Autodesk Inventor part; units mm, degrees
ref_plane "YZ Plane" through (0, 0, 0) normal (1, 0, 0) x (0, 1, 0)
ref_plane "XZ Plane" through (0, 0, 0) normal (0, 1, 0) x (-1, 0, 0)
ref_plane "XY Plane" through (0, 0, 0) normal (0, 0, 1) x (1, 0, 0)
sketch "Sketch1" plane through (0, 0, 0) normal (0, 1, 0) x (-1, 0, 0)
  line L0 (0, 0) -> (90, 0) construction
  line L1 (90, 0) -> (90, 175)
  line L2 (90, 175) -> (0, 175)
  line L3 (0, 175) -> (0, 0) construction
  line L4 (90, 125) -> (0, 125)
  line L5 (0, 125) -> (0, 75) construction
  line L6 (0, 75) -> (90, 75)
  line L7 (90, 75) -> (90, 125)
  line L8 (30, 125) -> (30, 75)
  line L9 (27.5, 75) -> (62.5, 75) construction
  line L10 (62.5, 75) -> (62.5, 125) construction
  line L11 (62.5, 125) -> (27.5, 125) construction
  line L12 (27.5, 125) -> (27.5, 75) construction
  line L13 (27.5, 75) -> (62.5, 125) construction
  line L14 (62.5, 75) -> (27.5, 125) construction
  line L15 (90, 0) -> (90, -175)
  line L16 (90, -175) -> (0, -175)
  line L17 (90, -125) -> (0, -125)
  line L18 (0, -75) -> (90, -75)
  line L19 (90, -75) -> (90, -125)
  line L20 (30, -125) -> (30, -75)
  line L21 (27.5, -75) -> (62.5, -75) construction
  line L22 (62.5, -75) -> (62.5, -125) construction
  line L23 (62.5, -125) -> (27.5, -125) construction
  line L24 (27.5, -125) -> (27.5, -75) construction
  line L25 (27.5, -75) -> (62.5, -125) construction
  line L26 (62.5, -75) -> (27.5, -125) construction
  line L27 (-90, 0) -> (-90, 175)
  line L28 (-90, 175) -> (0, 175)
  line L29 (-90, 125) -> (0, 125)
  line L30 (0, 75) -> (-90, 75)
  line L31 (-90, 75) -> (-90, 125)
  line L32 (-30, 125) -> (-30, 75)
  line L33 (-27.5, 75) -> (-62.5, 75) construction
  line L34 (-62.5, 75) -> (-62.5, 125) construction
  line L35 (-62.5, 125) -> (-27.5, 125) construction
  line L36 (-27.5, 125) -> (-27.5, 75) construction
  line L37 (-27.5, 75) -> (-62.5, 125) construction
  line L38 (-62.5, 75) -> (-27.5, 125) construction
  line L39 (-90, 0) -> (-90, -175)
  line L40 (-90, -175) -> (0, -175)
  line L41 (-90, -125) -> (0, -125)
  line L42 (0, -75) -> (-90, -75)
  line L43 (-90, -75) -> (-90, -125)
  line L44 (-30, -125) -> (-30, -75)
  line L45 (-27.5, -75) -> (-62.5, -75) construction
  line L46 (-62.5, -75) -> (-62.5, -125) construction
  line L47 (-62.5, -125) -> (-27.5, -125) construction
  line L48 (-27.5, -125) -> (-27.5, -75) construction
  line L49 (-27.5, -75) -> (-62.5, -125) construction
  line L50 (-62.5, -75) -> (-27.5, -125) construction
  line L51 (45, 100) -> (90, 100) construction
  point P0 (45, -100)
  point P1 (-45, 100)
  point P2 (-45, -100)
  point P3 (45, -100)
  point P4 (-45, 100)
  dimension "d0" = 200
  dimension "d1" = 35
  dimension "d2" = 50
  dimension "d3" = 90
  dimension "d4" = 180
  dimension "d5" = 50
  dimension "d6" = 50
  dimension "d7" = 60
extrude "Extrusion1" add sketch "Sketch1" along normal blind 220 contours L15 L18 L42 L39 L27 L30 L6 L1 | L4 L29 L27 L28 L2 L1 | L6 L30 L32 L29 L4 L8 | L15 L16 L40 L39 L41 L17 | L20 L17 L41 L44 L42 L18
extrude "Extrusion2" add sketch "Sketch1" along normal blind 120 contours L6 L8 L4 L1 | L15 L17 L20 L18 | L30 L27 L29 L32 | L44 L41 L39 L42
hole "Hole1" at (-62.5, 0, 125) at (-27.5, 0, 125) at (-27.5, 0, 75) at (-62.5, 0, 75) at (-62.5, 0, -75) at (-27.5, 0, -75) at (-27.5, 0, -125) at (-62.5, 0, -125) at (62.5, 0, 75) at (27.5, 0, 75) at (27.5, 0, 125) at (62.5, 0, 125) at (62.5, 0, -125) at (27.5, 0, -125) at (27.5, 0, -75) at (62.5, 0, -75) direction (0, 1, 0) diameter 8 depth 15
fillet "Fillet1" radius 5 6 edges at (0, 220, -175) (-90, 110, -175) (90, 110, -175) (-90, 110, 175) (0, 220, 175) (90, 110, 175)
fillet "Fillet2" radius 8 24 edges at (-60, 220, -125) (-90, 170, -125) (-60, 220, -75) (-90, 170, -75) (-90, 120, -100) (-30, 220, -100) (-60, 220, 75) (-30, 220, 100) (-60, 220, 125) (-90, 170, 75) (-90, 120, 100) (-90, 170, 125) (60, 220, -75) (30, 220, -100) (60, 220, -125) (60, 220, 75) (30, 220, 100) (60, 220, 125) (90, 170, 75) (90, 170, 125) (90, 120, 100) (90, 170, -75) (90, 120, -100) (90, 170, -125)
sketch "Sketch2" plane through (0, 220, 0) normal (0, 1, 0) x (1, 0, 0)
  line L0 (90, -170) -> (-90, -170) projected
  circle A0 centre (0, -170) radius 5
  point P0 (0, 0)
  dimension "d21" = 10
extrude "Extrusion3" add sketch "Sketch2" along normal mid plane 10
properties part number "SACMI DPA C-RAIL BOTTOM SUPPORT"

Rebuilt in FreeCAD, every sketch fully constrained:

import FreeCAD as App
import Part
import Sketcher


def edges_at(feature, points):
    """Names of the edges that pass closest to the given points."""
    edges = feature.Shape.Edges
    near = lambda p: min(range(len(edges)), key=lambda i: edges[i].distToShape(Part.Vertex(*p))[0])
    return sorted({f"Edge{near(p) + 1}" for p in points})


def add_polygon(sketch, points):
    """Adds a closed chain of lines whose ends are joined by coincident constraints."""
    first, n = sketch.GeometryCount, len(points)
    for a, b in zip(points, points[1:] + points[:1]):
        sketch.addGeometry(Part.LineSegment(App.Vector(*a, 0), App.Vector(*b, 0)), False)
    for i in range(n):
        sketch.addConstraint(Sketcher.Constraint("Coincident", first + i, 2, first + (i + 1) % n, 1))

doc = App.newDocument("Part")
body = doc.addObject("PartDesign::Body", "Body")

sketch1 = doc.addObject("Sketcher::SketchObject", "Sketch")
body.addObject(sketch1)
sketch1.AttachmentSupport = (doc.XZ_Plane, [""])
sketch1.MapMode = "FlatFace"
add_polygon(sketch1, [(-90, -75), (-90, 75), (-30, 75), (-30, 125), (-90, 125), (-90, 175), (90, 175), (90, 125), (30, 125), (30, 75), (90, 75), (90, -75), (30, -75), (30, -125), (90, -125), (90, -175), (-90, -175), (-90, -125), (-30, -125), (-30, -75)])
sketch1.addConstraint(Sketcher.Constraint("Vertical", 0))
sketch1.addConstraint(Sketcher.Constraint("Horizontal", 1))
sketch1.addConstraint(Sketcher.Constraint("Vertical", 2))
sketch1.addConstraint(Sketcher.Constraint("Horizontal", 3))
sketch1.addConstraint(Sketcher.Constraint("Vertical", 4))
sketch1.addConstraint(Sketcher.Constraint("Horizontal", 5))
sketch1.addConstraint(Sketcher.Constraint("Vertical", 6))
sketch1.addConstraint(Sketcher.Constraint("Horizontal", 7))
sketch1.addConstraint(Sketcher.Constraint("Vertical", 8))
sketch1.addConstraint(Sketcher.Constraint("Horizontal", 9))
sketch1.addConstraint(Sketcher.Constraint("Vertical", 10))
sketch1.addConstraint(Sketcher.Constraint("Horizontal", 11))
sketch1.addConstraint(Sketcher.Constraint("Vertical", 12))
sketch1.addConstraint(Sketcher.Constraint("Horizontal", 13))
sketch1.addConstraint(Sketcher.Constraint("Vertical", 14))
sketch1.addConstraint(Sketcher.Constraint("Horizontal", 15))
sketch1.addConstraint(Sketcher.Constraint("Vertical", 16))
sketch1.addConstraint(Sketcher.Constraint("Horizontal", 17))
sketch1.addConstraint(Sketcher.Constraint("Vertical", 18))
sketch1.addConstraint(Sketcher.Constraint("Horizontal", 19))
sketch1.addConstraint(Sketcher.Constraint("Symmetric", 0, 2, 10, 2, -1, 1))
sketch1.addConstraint(Sketcher.Constraint("Symmetric", 2, 2, 12, 2, -1, 1))
sketch1.addConstraint(Sketcher.Constraint("Symmetric", 4, 2, 14, 2, -1, 1))
sketch1.addConstraint(Sketcher.Constraint("Symmetric", 6, 2, 16, 2, -1, 1))
sketch1.addConstraint(Sketcher.Constraint("Symmetric", 8, 2, 18, 2, -1, 1))
sketch1.addConstraint(Sketcher.Constraint("Symmetric", 3, 2, 6, 2, -2))
sketch1.addConstraint(Sketcher.Constraint("Symmetric", 1, 2, 8, 2, -2))
sketch1.addConstraint(Sketcher.Constraint("Vertical", 0, 2, 3, 2))
sketch1.addConstraint(Sketcher.Constraint("Equal", 2, 4))
sketch1.addConstraint(Sketcher.Constraint("DistanceX", 1, 1, 1, 2, 60.0))
sketch1.addConstraint(Sketcher.Constraint("DistanceX", 5, 1, 5, 2, 180.0))
sketch1.addConstraint(Sketcher.Constraint("DistanceY", 2, 1, 2, 2, 50.0))
sketch1.addConstraint(Sketcher.Constraint("DistanceY", 10, 2, 6, 2, 200.0))
pad1 = doc.addObject("PartDesign::Pad", "Pad")
body.addObject(pad1)
pad1.Profile = sketch1
pad1.Length = 220
pad1.Reversed = True

sketch2 = doc.addObject("Sketcher::SketchObject", "Sketch001")
body.addObject(sketch2)
sketch2.AttachmentSupport = (doc.XZ_Plane, [""])
sketch2.MapMode = "FlatFace"
add_polygon(sketch2, [(-30, 75), (-90, 75), (-90, 125), (-30, 125)])
add_polygon(sketch2, [(-90, -125), (-90, -75), (-30, -75), (-30, -125)])
add_polygon(sketch2, [(90, 75), (30, 75), (30, 125), (90, 125)])
add_polygon(sketch2, [(30, -125), (30, -75), (90, -75), (90, -125)])
sketch2.addConstraint(Sketcher.Constraint("Horizontal", 0))
sketch2.addConstraint(Sketcher.Constraint("Vertical", 1))
sketch2.addConstraint(Sketcher.Constraint("Horizontal", 2))
sketch2.addConstraint(Sketcher.Constraint("Vertical", 3))
sketch2.addConstraint(Sketcher.Constraint("Vertical", 4))
sketch2.addConstraint(Sketcher.Constraint("Horizontal", 5))
sketch2.addConstraint(Sketcher.Constraint("Vertical", 6))
sketch2.addConstraint(Sketcher.Constraint("Horizontal", 7))
sketch2.addConstraint(Sketcher.Constraint("Horizontal", 8))
sketch2.addConstraint(Sketcher.Constraint("Vertical", 9))
sketch2.addConstraint(Sketcher.Constraint("Horizontal", 10))
sketch2.addConstraint(Sketcher.Constraint("Vertical", 11))
sketch2.addConstraint(Sketcher.Constraint("Vertical", 12))
sketch2.addConstraint(Sketcher.Constraint("Horizontal", 13))
sketch2.addConstraint(Sketcher.Constraint("Vertical", 14))
sketch2.addConstraint(Sketcher.Constraint("Horizontal", 15))
sketch2.addConstraint(Sketcher.Constraint("Symmetric", 5, 2, 8, 2, -1, 1))
sketch2.addConstraint(Sketcher.Constraint("Symmetric", 7, 2, 10, 2, -1, 1))
sketch2.addConstraint(Sketcher.Constraint("Symmetric", 3, 2, 12, 2, -1, 1))
sketch2.addConstraint(Sketcher.Constraint("Symmetric", 1, 2, 14, 2, -1, 1))
sketch2.addConstraint(Sketcher.Constraint("Symmetric", 3, 2, 8, 2, -2))
sketch2.addConstraint(Sketcher.Constraint("Symmetric", 1, 2, 10, 2, -2))
sketch2.addConstraint(Sketcher.Constraint("DistanceX", 0, 2, 0, 1, 60.0))
sketch2.addConstraint(Sketcher.Constraint("DistanceY", 1, 1, 1, 2, 50.0))
sketch2.addConstraint(Sketcher.Constraint("DistanceX", 0, 2, -1, 1, 90.0))
sketch2.addConstraint(Sketcher.Constraint("DistanceY", 4, 2, 1, 2, 200.0))
pad2 = doc.addObject("PartDesign::Pad", "Pad001")
body.addObject(pad2)
pad2.Profile = sketch2
pad2.Length = 120
pad2.Reversed = True

sketch3 = doc.addObject("Sketcher::SketchObject", "Sketch002")
body.addObject(sketch3)
sketch3.AttachmentSupport = (doc.XZ_Plane, [""])
sketch3.MapMode = "FlatFace"
sketch3.addGeometry(Part.Circle(App.Vector(-62.5, 125, 0), App.Vector(0, 0, 1), 4), False)
sketch3.addGeometry(Part.Circle(App.Vector(-27.5, 125, 0), App.Vector(0, 0, 1), 4), False)
sketch3.addGeometry(Part.Circle(App.Vector(-27.5, 75, 0), App.Vector(0, 0, 1), 4), False)
sketch3.addGeometry(Part.Circle(App.Vector(-62.5, 75, 0), App.Vector(0, 0, 1), 4), False)
sketch3.addGeometry(Part.Circle(App.Vector(-62.5, -75, 0), App.Vector(0, 0, 1), 4), False)
sketch3.addGeometry(Part.Circle(App.Vector(-27.5, -75, 0), App.Vector(0, 0, 1), 4), False)
sketch3.addGeometry(Part.Circle(App.Vector(-27.5, -125, 0), App.Vector(0, 0, 1), 4), False)
sketch3.addGeometry(Part.Circle(App.Vector(-62.5, -125, 0), App.Vector(0, 0, 1), 4), False)
sketch3.addGeometry(Part.Circle(App.Vector(62.5, 75, 0), App.Vector(0, 0, 1), 4), False)
sketch3.addGeometry(Part.Circle(App.Vector(27.5, 75, 0), App.Vector(0, 0, 1), 4), False)
sketch3.addGeometry(Part.Circle(App.Vector(27.5, 125, 0), App.Vector(0, 0, 1), 4), False)
sketch3.addGeometry(Part.Circle(App.Vector(62.5, 125, 0), App.Vector(0, 0, 1), 4), False)
sketch3.addGeometry(Part.Circle(App.Vector(62.5, -125, 0), App.Vector(0, 0, 1), 4), False)
sketch3.addGeometry(Part.Circle(App.Vector(27.5, -125, 0), App.Vector(0, 0, 1), 4), False)
sketch3.addGeometry(Part.Circle(App.Vector(27.5, -75, 0), App.Vector(0, 0, 1), 4), False)
sketch3.addGeometry(Part.Circle(App.Vector(62.5, -75, 0), App.Vector(0, 0, 1), 4), False)
sketch3.addConstraint(Sketcher.Constraint("Equal", 0, 1))
sketch3.addConstraint(Sketcher.Constraint("Equal", 1, 2))
sketch3.addConstraint(Sketcher.Constraint("Equal", 2, 3))
sketch3.addConstraint(Sketcher.Constraint("Equal", 3, 4))
sketch3.addConstraint(Sketcher.Constraint("Equal", 4, 5))
sketch3.addConstraint(Sketcher.Constraint("Equal", 5, 6))
sketch3.addConstraint(Sketcher.Constraint("Equal", 6, 7))
sketch3.addConstraint(Sketcher.Constraint("Equal", 7, 8))
sketch3.addConstraint(Sketcher.Constraint("Equal", 8, 9))
sketch3.addConstraint(Sketcher.Constraint("Equal", 9, 10))
sketch3.addConstraint(Sketcher.Constraint("Equal", 10, 11))
sketch3.addConstraint(Sketcher.Constraint("Equal", 11, 12))
sketch3.addConstraint(Sketcher.Constraint("Equal", 12, 13))
sketch3.addConstraint(Sketcher.Constraint("Equal", 13, 14))
sketch3.addConstraint(Sketcher.Constraint("Equal", 14, 15))
sketch3.addConstraint(Sketcher.Constraint("Symmetric", 4, 3, 8, 3, -1, 1))
sketch3.addConstraint(Sketcher.Constraint("Symmetric", 5, 3, 9, 3, -1, 1))
sketch3.addConstraint(Sketcher.Constraint("Symmetric", 6, 3, 10, 3, -1, 1))
sketch3.addConstraint(Sketcher.Constraint("Symmetric", 7, 3, 11, 3, -1, 1))
sketch3.addConstraint(Sketcher.Constraint("Symmetric", 0, 3, 12, 3, -1, 1))
sketch3.addConstraint(Sketcher.Constraint("Symmetric", 1, 3, 13, 3, -1, 1))
sketch3.addConstraint(Sketcher.Constraint("Symmetric", 2, 3, 14, 3, -1, 1))
sketch3.addConstraint(Sketcher.Constraint("Symmetric", 3, 3, 15, 3, -1, 1))
sketch3.addConstraint(Sketcher.Constraint("Symmetric", 3, 3, 8, 3, -2))
sketch3.addConstraint(Sketcher.Constraint("Symmetric", 2, 3, 9, 3, -2))
sketch3.addConstraint(Sketcher.Constraint("Symmetric", 1, 3, 10, 3, -2))
sketch3.addConstraint(Sketcher.Constraint("Symmetric", 0, 3, 11, 3, -2))
sketch3.addConstraint(Sketcher.Constraint("Horizontal", 0, 3, 1, 3))
sketch3.addConstraint(Sketcher.Constraint("Horizontal", 2, 3, 3, 3))
sketch3.addConstraint(Sketcher.Constraint("Vertical", 1, 3, 2, 3))
sketch3.addConstraint(Sketcher.Constraint("Vertical", 0, 3, 3, 3))
sketch3.addConstraint(Sketcher.Constraint("Diameter", 0, 8.0))
sketch3.addConstraint(Sketcher.Constraint("DistanceY", -1, 1, 0, 3, 125.0))
sketch3.addConstraint(Sketcher.Constraint("DistanceY", -1, 1, 2, 3, 75.0))
sketch3.addConstraint(Sketcher.Constraint("DistanceX", 0, 3, 1, 3, 35.0))
sketch3.addConstraint(Sketcher.Constraint("DistanceX", 2, 3, 8, 3, 90.0))
doc.recompute()
hole = doc.addObject("PartDesign::Hole", "Hole")
body.addObject(hole)
hole.Profile = sketch3
hole.ThreadType = "None"
hole.Diameter = 8
hole.DepthType = "Dimension"
hole.Depth = 15
hole.DrillPoint = "Flat"
doc.recompute()

fillet = doc.addObject("PartDesign::Fillet", "Fillet")
body.addObject(fillet)
fillet.Base = (hole, edges_at(hole, [
    (0, 220, -175),
    (-90, 110, -175),
    (90, 110, -175),
    (-90, 110, 175),
    (0, 220, 175),
    (90, 110, 175),
]))
fillet.Radius = 5
doc.recompute()

fillet2 = doc.addObject("PartDesign::Fillet", "Fillet001")
body.addObject(fillet2)
fillet2.Base = (fillet, edges_at(fillet, [
    (-60, 220, -125),
    (-90, 170, -125),
    (-60, 220, -75),
    (-90, 170, -75),
    (-90, 120, -100),
    (-30, 220, -100),
    (-60, 220, 75),
    (-30, 220, 100),
    (-60, 220, 125),
    (-90, 170, 75),
    (-90, 120, 100),
    (-90, 170, 125),
    (60, 220, -75),
    (30, 220, -100),
    (60, 220, -125),
    (60, 220, 75),
    (30, 220, 100),
    (60, 220, 125),
    (90, 170, 75),
    (90, 170, 125),
    (90, 120, 100),
    (90, 170, -75),
    (90, 120, -100),
    (90, 170, -125),
]))
fillet2.Radius = 8

sketch4 = doc.addObject("Sketcher::SketchObject", "Sketch003")
body.addObject(sketch4)
sketch4.AttachmentSupport = (doc.XZ_Plane, [""])
sketch4.MapMode = "FlatFace"
sketch4.AttachmentOffset = App.Placement(App.Vector(0, 0, -220), App.Rotation())
sketch4.addGeometry(Part.Circle(App.Vector(0, 170, 0), App.Vector(0, 0, 1), 5), False)
sketch4.addConstraint(Sketcher.Constraint("PointOnObject", 0, 3, -2))
sketch4.addConstraint(Sketcher.Constraint("Diameter", 0, 10.0))
sketch4.addConstraint(Sketcher.Constraint("DistanceY", -1, 1, 0, 3, 170.0))
pad3 = doc.addObject("PartDesign::Pad", "Pad002")
body.addObject(pad3)
pad3.Profile = sketch4
pad3.Length = 10
pad3.Midplane = True

doc.recompute()
